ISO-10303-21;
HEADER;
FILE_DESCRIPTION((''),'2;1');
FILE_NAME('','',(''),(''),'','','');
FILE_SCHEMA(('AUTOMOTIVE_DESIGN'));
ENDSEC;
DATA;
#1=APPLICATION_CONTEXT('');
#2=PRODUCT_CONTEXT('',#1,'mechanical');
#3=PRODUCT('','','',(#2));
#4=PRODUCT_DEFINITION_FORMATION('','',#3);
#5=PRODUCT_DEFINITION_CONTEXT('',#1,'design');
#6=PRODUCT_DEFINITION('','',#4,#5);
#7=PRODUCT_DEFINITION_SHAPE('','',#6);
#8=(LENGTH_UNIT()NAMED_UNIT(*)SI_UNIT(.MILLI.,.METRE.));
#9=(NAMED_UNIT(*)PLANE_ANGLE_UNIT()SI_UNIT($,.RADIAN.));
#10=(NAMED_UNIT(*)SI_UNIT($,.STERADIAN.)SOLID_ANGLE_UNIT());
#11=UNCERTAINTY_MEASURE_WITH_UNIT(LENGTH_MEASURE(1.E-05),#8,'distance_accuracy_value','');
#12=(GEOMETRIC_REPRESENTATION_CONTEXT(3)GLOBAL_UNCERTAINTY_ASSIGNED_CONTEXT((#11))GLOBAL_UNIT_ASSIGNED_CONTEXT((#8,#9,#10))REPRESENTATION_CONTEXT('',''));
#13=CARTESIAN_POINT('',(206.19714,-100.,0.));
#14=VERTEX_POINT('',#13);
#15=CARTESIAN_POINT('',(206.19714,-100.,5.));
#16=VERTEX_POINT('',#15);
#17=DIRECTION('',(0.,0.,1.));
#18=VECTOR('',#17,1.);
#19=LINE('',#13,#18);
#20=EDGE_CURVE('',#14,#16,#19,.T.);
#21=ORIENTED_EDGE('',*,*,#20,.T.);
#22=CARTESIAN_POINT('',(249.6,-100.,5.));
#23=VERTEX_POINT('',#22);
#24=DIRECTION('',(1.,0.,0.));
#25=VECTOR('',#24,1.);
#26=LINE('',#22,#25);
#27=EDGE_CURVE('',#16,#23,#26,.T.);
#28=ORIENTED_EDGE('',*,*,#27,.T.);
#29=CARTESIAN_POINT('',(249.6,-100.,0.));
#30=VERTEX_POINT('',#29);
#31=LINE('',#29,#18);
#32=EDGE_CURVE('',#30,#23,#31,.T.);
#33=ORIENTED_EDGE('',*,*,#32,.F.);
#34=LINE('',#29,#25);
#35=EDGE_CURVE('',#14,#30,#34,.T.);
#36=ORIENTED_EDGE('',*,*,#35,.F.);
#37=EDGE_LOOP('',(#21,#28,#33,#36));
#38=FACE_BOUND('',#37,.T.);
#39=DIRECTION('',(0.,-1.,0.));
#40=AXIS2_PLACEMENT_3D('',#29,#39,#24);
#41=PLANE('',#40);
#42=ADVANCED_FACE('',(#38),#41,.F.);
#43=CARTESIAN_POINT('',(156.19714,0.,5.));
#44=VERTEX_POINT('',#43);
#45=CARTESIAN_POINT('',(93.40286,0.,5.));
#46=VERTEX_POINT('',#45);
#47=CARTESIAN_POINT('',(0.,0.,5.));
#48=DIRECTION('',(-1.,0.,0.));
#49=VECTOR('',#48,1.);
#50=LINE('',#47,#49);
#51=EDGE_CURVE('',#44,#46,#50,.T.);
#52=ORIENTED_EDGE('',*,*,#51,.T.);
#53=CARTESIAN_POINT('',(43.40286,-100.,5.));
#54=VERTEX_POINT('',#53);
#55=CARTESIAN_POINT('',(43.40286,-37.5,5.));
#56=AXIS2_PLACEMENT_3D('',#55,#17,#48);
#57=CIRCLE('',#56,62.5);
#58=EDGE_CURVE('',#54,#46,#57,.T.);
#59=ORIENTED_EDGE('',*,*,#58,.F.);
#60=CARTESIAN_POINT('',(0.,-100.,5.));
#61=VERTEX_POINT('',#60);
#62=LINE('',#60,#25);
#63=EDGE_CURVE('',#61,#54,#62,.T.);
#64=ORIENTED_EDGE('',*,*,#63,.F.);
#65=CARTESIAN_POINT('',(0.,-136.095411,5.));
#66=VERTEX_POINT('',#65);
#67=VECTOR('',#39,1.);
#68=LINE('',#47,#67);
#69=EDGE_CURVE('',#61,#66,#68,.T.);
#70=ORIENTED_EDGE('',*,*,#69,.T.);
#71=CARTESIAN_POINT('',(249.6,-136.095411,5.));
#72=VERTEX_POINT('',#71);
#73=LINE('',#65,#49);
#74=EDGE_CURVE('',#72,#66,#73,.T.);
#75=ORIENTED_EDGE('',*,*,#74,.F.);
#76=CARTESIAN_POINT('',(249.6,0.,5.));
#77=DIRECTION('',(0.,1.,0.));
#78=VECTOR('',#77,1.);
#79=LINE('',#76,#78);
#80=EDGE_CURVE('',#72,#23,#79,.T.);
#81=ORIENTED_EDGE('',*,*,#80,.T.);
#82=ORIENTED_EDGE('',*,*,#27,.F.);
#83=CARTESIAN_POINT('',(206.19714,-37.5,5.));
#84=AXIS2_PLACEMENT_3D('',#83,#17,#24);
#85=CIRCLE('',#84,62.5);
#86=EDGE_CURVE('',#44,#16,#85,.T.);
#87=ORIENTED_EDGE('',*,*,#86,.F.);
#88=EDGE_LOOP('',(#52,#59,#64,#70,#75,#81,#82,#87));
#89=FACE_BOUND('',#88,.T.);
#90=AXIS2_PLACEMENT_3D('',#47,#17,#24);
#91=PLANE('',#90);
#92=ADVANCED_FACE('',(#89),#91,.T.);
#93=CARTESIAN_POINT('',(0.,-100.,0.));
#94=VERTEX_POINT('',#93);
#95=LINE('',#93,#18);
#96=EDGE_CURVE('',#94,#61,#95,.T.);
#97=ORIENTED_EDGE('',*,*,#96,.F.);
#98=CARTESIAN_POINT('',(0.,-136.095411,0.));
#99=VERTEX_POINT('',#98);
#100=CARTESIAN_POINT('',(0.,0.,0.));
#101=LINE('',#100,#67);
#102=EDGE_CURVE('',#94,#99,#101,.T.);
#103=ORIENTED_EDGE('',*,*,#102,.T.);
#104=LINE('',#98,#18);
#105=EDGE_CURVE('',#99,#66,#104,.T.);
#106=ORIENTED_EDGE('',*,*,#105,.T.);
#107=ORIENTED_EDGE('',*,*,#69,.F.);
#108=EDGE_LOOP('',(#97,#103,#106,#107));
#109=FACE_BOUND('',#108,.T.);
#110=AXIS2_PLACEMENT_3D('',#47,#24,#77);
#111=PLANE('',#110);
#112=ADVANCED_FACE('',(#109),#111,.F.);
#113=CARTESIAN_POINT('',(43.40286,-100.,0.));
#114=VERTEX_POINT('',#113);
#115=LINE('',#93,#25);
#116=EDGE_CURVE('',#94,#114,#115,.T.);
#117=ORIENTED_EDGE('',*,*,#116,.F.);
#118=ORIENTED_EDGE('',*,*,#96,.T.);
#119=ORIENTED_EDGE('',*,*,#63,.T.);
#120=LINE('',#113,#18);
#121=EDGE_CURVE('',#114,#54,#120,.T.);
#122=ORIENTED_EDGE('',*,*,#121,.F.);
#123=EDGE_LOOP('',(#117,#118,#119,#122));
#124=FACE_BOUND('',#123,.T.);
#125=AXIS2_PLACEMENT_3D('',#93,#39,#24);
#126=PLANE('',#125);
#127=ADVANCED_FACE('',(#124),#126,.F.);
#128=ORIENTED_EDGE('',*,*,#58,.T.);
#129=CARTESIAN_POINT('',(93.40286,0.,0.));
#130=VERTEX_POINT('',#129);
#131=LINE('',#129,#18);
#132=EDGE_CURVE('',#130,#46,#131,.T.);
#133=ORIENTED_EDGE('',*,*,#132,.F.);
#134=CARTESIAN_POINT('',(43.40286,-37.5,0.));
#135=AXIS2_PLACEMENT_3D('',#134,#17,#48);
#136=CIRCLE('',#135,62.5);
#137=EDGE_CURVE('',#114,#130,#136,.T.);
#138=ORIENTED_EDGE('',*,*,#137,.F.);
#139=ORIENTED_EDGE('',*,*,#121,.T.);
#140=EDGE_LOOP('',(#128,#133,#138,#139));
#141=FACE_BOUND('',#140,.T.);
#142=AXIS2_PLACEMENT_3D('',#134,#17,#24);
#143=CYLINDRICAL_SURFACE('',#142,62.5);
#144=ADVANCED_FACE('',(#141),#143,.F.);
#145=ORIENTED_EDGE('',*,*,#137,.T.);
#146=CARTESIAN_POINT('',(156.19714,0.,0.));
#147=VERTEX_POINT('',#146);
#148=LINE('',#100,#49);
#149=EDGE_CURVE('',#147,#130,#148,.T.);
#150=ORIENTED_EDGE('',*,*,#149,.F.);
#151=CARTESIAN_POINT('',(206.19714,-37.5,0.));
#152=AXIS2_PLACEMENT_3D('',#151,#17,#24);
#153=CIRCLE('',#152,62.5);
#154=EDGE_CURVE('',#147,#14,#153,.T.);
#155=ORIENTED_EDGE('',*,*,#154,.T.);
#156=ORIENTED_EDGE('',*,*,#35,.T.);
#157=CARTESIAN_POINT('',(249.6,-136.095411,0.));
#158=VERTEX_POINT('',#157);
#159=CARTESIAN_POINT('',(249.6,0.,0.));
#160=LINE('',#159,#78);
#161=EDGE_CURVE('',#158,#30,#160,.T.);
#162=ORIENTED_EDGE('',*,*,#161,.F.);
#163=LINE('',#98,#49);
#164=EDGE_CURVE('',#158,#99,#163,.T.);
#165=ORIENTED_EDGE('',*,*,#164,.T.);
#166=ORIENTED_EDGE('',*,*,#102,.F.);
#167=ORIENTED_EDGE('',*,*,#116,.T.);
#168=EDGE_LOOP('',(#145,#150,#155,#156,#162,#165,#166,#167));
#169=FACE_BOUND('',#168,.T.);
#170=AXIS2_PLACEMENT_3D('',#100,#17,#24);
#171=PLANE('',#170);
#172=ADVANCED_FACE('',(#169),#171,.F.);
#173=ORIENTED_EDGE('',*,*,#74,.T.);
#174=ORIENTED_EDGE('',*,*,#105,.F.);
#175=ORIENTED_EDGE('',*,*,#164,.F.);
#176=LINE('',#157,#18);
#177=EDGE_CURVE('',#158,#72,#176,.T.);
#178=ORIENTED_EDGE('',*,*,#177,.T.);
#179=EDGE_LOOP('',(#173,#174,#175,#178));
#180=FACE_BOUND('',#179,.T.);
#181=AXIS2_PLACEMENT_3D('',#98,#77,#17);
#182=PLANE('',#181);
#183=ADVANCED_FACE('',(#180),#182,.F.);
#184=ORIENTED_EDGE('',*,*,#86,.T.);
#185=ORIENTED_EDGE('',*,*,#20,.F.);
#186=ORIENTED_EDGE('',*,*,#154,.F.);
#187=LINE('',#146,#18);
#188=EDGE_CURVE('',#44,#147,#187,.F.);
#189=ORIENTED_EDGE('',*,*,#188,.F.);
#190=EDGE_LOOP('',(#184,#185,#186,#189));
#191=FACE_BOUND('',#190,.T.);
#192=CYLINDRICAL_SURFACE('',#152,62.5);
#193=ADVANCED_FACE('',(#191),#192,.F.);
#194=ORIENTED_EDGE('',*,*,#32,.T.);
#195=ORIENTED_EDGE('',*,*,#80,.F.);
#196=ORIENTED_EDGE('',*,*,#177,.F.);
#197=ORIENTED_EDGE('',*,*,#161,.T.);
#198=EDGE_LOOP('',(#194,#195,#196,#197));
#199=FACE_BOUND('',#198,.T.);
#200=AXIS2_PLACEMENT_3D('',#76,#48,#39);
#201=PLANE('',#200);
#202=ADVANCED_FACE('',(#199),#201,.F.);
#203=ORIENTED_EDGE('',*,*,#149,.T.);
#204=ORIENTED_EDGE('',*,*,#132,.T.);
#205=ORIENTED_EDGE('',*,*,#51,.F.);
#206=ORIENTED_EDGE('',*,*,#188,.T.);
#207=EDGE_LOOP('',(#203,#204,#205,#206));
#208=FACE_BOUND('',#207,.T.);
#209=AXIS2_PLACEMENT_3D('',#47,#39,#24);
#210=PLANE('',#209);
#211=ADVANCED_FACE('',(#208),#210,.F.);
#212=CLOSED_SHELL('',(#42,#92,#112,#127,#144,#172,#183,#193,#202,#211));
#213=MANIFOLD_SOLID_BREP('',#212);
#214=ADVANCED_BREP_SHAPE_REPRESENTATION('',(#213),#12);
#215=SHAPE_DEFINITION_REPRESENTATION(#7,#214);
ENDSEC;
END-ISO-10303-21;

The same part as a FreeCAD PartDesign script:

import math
import FreeCAD as App
import Part
import Sketcher
from FreeCAD import Vector


def add_polygon(sketch, points):
    """Adds a closed chain of lines whose ends are joined by coincident constraints."""
    first, n = sketch.GeometryCount, len(points)
    for a, b in zip(points, points[1:] + points[:1]):
        sketch.addGeometry(Part.LineSegment(App.Vector(*a, 0), App.Vector(*b, 0)), False)
    for i in range(n):
        sketch.addConstraint(Sketcher.Constraint("Coincident", first + i, 2, first + (i + 1) % n, 1))

doc = App.newDocument("Part")
body = doc.addObject("PartDesign::Body", "Body")

sketch1 = body.newObject("Sketcher::SketchObject", "Sketch")
sketch1.AttachmentSupport = (doc.getObject("XY_Plane"), [""])
sketch1.MapMode = "FlatFace"
add_polygon(sketch1, [(0, 0), (0, -267), (250, -267), (250, 0)])
sketch1.addConstraint([
    Sketcher.Constraint("Vertical", 0),
    Sketcher.Constraint("Horizontal", 1),
    Sketcher.Constraint("Vertical", 2),
    Sketcher.Constraint("Horizontal", 3),
    Sketcher.Constraint("Coincident", 3, 2, -1, 1),
    Sketcher.Constraint("DistanceX", 1, 1, 1, 2, 249.6),
    Sketcher.Constraint("DistanceY", 0, 2, 0, 1, 267.4),
])
pad1 = body.newObject("PartDesign::Pad", "Pad")
pad1.Profile = sketch1
pad1.Length = 5

sketch2 = body.newObject("Sketcher::SketchObject", "Sketch001")
sketch2.AttachmentSupport = (doc.getObject("XY_Plane"), [""])
sketch2.MapMode = "FlatFace"
sketch2.AttachmentOffset = App.Placement(Vector(0, 0, 5), App.Rotation())
add_polygon(sketch2, [(0, -136), (0, -267), (250, -267), (250, -136)])
sketch2.addGeometry(Part.LineSegment(Vector(250, 25, 0), Vector(206, 25, 0)), False)
sketch2.addGeometry(Part.ArcOfCircle(Part.Circle(Vector(206, -38, 0), Vector(0, 0, 1), 62), math.radians(90), math.radians(270)), False)
sketch2.addGeometry(Part.LineSegment(Vector(206, -100, 0), Vector(250, -100, 0)), False)
sketch2.addGeometry(Part.LineSegment(Vector(250, -100, 0), Vector(250, 25, 0)), False)
sketch2.addGeometry(Part.LineSegment(Vector(0, 25, 0), Vector(0, -100, 0)), False)
sketch2.addGeometry(Part.LineSegment(Vector(0, -100, 0), Vector(43, -100, 0)), False)
sketch2.addGeometry(Part.ArcOfCircle(Part.Circle(Vector(43, -38, 0), Vector(0, 0, 1), 62), math.radians(-90), math.radians(90)), False)
sketch2.addGeometry(Part.LineSegment(Vector(43, 25, 0), Vector(0, 25, 0)), False)
sketch2.addConstraint([
    Sketcher.Constraint("Tangent", 4, 2, 5, 1),
    Sketcher.Constraint("Tangent", 5, 2, 6, 1),
    Sketcher.Constraint("Coincident", 6, 2, 7, 1),
    Sketcher.Constraint("Coincident", 7, 2, 4, 1),
    Sketcher.Constraint("Coincident", 8, 2, 9, 1),
    Sketcher.Constraint("Tangent", 9, 2, 10, 1),
    Sketcher.Constraint("Tangent", 10, 2, 11, 1),
    Sketcher.Constraint("Coincident", 11, 2, 8, 1),
    Sketcher.Constraint("Vertical", 0),
    Sketcher.Constraint("Horizontal", 1),
    Sketcher.Constraint("Vertical", 2),
    Sketcher.Constraint("Horizontal", 3),
    Sketcher.Constraint("Horizontal", 4),
    Sketcher.Constraint("Horizontal", 6),
    Sketcher.Constraint("Vertical", 7),
    Sketcher.Constraint("Vertical", 8),
    Sketcher.Constraint("Horizontal", 9),
    Sketcher.Constraint("Horizontal", 11),
    Sketcher.Constraint("Equal", 5, 10),
    Sketcher.Constraint("PointOnObject", 0, 2, -2),
    Sketcher.Constraint("PointOnObject", 8, 2, -2),
    Sketcher.Constraint("Horizontal", 5, 3, 10, 3),
    Sketcher.Constraint("Vertical", 2, 2, 6, 2),
    Sketcher.Constraint("Equal", 6, 9),
    Sketcher.Constraint("Radius", 5, 62.5),
    Sketcher.Constraint("DistanceX", 1, 1, 1, 2, 249.6),
    Sketcher.Constraint("DistanceY", -1, 1, 4, 2, 25.0),
    Sketcher.Constraint("DistanceY", 0, 2, -1, 1, 267.4),
    Sketcher.Constraint("DistanceX", 4, 2, 4, 1, 43.40286),
    Sketcher.Constraint("DistanceY", 0, 2, 0, 1, 131.304589),
])
pocket1 = body.newObject("PartDesign::Pocket", "Pocket")
pocket1.Profile = sketch2
pocket1.Type = "ThroughAll"

doc.recompute()
